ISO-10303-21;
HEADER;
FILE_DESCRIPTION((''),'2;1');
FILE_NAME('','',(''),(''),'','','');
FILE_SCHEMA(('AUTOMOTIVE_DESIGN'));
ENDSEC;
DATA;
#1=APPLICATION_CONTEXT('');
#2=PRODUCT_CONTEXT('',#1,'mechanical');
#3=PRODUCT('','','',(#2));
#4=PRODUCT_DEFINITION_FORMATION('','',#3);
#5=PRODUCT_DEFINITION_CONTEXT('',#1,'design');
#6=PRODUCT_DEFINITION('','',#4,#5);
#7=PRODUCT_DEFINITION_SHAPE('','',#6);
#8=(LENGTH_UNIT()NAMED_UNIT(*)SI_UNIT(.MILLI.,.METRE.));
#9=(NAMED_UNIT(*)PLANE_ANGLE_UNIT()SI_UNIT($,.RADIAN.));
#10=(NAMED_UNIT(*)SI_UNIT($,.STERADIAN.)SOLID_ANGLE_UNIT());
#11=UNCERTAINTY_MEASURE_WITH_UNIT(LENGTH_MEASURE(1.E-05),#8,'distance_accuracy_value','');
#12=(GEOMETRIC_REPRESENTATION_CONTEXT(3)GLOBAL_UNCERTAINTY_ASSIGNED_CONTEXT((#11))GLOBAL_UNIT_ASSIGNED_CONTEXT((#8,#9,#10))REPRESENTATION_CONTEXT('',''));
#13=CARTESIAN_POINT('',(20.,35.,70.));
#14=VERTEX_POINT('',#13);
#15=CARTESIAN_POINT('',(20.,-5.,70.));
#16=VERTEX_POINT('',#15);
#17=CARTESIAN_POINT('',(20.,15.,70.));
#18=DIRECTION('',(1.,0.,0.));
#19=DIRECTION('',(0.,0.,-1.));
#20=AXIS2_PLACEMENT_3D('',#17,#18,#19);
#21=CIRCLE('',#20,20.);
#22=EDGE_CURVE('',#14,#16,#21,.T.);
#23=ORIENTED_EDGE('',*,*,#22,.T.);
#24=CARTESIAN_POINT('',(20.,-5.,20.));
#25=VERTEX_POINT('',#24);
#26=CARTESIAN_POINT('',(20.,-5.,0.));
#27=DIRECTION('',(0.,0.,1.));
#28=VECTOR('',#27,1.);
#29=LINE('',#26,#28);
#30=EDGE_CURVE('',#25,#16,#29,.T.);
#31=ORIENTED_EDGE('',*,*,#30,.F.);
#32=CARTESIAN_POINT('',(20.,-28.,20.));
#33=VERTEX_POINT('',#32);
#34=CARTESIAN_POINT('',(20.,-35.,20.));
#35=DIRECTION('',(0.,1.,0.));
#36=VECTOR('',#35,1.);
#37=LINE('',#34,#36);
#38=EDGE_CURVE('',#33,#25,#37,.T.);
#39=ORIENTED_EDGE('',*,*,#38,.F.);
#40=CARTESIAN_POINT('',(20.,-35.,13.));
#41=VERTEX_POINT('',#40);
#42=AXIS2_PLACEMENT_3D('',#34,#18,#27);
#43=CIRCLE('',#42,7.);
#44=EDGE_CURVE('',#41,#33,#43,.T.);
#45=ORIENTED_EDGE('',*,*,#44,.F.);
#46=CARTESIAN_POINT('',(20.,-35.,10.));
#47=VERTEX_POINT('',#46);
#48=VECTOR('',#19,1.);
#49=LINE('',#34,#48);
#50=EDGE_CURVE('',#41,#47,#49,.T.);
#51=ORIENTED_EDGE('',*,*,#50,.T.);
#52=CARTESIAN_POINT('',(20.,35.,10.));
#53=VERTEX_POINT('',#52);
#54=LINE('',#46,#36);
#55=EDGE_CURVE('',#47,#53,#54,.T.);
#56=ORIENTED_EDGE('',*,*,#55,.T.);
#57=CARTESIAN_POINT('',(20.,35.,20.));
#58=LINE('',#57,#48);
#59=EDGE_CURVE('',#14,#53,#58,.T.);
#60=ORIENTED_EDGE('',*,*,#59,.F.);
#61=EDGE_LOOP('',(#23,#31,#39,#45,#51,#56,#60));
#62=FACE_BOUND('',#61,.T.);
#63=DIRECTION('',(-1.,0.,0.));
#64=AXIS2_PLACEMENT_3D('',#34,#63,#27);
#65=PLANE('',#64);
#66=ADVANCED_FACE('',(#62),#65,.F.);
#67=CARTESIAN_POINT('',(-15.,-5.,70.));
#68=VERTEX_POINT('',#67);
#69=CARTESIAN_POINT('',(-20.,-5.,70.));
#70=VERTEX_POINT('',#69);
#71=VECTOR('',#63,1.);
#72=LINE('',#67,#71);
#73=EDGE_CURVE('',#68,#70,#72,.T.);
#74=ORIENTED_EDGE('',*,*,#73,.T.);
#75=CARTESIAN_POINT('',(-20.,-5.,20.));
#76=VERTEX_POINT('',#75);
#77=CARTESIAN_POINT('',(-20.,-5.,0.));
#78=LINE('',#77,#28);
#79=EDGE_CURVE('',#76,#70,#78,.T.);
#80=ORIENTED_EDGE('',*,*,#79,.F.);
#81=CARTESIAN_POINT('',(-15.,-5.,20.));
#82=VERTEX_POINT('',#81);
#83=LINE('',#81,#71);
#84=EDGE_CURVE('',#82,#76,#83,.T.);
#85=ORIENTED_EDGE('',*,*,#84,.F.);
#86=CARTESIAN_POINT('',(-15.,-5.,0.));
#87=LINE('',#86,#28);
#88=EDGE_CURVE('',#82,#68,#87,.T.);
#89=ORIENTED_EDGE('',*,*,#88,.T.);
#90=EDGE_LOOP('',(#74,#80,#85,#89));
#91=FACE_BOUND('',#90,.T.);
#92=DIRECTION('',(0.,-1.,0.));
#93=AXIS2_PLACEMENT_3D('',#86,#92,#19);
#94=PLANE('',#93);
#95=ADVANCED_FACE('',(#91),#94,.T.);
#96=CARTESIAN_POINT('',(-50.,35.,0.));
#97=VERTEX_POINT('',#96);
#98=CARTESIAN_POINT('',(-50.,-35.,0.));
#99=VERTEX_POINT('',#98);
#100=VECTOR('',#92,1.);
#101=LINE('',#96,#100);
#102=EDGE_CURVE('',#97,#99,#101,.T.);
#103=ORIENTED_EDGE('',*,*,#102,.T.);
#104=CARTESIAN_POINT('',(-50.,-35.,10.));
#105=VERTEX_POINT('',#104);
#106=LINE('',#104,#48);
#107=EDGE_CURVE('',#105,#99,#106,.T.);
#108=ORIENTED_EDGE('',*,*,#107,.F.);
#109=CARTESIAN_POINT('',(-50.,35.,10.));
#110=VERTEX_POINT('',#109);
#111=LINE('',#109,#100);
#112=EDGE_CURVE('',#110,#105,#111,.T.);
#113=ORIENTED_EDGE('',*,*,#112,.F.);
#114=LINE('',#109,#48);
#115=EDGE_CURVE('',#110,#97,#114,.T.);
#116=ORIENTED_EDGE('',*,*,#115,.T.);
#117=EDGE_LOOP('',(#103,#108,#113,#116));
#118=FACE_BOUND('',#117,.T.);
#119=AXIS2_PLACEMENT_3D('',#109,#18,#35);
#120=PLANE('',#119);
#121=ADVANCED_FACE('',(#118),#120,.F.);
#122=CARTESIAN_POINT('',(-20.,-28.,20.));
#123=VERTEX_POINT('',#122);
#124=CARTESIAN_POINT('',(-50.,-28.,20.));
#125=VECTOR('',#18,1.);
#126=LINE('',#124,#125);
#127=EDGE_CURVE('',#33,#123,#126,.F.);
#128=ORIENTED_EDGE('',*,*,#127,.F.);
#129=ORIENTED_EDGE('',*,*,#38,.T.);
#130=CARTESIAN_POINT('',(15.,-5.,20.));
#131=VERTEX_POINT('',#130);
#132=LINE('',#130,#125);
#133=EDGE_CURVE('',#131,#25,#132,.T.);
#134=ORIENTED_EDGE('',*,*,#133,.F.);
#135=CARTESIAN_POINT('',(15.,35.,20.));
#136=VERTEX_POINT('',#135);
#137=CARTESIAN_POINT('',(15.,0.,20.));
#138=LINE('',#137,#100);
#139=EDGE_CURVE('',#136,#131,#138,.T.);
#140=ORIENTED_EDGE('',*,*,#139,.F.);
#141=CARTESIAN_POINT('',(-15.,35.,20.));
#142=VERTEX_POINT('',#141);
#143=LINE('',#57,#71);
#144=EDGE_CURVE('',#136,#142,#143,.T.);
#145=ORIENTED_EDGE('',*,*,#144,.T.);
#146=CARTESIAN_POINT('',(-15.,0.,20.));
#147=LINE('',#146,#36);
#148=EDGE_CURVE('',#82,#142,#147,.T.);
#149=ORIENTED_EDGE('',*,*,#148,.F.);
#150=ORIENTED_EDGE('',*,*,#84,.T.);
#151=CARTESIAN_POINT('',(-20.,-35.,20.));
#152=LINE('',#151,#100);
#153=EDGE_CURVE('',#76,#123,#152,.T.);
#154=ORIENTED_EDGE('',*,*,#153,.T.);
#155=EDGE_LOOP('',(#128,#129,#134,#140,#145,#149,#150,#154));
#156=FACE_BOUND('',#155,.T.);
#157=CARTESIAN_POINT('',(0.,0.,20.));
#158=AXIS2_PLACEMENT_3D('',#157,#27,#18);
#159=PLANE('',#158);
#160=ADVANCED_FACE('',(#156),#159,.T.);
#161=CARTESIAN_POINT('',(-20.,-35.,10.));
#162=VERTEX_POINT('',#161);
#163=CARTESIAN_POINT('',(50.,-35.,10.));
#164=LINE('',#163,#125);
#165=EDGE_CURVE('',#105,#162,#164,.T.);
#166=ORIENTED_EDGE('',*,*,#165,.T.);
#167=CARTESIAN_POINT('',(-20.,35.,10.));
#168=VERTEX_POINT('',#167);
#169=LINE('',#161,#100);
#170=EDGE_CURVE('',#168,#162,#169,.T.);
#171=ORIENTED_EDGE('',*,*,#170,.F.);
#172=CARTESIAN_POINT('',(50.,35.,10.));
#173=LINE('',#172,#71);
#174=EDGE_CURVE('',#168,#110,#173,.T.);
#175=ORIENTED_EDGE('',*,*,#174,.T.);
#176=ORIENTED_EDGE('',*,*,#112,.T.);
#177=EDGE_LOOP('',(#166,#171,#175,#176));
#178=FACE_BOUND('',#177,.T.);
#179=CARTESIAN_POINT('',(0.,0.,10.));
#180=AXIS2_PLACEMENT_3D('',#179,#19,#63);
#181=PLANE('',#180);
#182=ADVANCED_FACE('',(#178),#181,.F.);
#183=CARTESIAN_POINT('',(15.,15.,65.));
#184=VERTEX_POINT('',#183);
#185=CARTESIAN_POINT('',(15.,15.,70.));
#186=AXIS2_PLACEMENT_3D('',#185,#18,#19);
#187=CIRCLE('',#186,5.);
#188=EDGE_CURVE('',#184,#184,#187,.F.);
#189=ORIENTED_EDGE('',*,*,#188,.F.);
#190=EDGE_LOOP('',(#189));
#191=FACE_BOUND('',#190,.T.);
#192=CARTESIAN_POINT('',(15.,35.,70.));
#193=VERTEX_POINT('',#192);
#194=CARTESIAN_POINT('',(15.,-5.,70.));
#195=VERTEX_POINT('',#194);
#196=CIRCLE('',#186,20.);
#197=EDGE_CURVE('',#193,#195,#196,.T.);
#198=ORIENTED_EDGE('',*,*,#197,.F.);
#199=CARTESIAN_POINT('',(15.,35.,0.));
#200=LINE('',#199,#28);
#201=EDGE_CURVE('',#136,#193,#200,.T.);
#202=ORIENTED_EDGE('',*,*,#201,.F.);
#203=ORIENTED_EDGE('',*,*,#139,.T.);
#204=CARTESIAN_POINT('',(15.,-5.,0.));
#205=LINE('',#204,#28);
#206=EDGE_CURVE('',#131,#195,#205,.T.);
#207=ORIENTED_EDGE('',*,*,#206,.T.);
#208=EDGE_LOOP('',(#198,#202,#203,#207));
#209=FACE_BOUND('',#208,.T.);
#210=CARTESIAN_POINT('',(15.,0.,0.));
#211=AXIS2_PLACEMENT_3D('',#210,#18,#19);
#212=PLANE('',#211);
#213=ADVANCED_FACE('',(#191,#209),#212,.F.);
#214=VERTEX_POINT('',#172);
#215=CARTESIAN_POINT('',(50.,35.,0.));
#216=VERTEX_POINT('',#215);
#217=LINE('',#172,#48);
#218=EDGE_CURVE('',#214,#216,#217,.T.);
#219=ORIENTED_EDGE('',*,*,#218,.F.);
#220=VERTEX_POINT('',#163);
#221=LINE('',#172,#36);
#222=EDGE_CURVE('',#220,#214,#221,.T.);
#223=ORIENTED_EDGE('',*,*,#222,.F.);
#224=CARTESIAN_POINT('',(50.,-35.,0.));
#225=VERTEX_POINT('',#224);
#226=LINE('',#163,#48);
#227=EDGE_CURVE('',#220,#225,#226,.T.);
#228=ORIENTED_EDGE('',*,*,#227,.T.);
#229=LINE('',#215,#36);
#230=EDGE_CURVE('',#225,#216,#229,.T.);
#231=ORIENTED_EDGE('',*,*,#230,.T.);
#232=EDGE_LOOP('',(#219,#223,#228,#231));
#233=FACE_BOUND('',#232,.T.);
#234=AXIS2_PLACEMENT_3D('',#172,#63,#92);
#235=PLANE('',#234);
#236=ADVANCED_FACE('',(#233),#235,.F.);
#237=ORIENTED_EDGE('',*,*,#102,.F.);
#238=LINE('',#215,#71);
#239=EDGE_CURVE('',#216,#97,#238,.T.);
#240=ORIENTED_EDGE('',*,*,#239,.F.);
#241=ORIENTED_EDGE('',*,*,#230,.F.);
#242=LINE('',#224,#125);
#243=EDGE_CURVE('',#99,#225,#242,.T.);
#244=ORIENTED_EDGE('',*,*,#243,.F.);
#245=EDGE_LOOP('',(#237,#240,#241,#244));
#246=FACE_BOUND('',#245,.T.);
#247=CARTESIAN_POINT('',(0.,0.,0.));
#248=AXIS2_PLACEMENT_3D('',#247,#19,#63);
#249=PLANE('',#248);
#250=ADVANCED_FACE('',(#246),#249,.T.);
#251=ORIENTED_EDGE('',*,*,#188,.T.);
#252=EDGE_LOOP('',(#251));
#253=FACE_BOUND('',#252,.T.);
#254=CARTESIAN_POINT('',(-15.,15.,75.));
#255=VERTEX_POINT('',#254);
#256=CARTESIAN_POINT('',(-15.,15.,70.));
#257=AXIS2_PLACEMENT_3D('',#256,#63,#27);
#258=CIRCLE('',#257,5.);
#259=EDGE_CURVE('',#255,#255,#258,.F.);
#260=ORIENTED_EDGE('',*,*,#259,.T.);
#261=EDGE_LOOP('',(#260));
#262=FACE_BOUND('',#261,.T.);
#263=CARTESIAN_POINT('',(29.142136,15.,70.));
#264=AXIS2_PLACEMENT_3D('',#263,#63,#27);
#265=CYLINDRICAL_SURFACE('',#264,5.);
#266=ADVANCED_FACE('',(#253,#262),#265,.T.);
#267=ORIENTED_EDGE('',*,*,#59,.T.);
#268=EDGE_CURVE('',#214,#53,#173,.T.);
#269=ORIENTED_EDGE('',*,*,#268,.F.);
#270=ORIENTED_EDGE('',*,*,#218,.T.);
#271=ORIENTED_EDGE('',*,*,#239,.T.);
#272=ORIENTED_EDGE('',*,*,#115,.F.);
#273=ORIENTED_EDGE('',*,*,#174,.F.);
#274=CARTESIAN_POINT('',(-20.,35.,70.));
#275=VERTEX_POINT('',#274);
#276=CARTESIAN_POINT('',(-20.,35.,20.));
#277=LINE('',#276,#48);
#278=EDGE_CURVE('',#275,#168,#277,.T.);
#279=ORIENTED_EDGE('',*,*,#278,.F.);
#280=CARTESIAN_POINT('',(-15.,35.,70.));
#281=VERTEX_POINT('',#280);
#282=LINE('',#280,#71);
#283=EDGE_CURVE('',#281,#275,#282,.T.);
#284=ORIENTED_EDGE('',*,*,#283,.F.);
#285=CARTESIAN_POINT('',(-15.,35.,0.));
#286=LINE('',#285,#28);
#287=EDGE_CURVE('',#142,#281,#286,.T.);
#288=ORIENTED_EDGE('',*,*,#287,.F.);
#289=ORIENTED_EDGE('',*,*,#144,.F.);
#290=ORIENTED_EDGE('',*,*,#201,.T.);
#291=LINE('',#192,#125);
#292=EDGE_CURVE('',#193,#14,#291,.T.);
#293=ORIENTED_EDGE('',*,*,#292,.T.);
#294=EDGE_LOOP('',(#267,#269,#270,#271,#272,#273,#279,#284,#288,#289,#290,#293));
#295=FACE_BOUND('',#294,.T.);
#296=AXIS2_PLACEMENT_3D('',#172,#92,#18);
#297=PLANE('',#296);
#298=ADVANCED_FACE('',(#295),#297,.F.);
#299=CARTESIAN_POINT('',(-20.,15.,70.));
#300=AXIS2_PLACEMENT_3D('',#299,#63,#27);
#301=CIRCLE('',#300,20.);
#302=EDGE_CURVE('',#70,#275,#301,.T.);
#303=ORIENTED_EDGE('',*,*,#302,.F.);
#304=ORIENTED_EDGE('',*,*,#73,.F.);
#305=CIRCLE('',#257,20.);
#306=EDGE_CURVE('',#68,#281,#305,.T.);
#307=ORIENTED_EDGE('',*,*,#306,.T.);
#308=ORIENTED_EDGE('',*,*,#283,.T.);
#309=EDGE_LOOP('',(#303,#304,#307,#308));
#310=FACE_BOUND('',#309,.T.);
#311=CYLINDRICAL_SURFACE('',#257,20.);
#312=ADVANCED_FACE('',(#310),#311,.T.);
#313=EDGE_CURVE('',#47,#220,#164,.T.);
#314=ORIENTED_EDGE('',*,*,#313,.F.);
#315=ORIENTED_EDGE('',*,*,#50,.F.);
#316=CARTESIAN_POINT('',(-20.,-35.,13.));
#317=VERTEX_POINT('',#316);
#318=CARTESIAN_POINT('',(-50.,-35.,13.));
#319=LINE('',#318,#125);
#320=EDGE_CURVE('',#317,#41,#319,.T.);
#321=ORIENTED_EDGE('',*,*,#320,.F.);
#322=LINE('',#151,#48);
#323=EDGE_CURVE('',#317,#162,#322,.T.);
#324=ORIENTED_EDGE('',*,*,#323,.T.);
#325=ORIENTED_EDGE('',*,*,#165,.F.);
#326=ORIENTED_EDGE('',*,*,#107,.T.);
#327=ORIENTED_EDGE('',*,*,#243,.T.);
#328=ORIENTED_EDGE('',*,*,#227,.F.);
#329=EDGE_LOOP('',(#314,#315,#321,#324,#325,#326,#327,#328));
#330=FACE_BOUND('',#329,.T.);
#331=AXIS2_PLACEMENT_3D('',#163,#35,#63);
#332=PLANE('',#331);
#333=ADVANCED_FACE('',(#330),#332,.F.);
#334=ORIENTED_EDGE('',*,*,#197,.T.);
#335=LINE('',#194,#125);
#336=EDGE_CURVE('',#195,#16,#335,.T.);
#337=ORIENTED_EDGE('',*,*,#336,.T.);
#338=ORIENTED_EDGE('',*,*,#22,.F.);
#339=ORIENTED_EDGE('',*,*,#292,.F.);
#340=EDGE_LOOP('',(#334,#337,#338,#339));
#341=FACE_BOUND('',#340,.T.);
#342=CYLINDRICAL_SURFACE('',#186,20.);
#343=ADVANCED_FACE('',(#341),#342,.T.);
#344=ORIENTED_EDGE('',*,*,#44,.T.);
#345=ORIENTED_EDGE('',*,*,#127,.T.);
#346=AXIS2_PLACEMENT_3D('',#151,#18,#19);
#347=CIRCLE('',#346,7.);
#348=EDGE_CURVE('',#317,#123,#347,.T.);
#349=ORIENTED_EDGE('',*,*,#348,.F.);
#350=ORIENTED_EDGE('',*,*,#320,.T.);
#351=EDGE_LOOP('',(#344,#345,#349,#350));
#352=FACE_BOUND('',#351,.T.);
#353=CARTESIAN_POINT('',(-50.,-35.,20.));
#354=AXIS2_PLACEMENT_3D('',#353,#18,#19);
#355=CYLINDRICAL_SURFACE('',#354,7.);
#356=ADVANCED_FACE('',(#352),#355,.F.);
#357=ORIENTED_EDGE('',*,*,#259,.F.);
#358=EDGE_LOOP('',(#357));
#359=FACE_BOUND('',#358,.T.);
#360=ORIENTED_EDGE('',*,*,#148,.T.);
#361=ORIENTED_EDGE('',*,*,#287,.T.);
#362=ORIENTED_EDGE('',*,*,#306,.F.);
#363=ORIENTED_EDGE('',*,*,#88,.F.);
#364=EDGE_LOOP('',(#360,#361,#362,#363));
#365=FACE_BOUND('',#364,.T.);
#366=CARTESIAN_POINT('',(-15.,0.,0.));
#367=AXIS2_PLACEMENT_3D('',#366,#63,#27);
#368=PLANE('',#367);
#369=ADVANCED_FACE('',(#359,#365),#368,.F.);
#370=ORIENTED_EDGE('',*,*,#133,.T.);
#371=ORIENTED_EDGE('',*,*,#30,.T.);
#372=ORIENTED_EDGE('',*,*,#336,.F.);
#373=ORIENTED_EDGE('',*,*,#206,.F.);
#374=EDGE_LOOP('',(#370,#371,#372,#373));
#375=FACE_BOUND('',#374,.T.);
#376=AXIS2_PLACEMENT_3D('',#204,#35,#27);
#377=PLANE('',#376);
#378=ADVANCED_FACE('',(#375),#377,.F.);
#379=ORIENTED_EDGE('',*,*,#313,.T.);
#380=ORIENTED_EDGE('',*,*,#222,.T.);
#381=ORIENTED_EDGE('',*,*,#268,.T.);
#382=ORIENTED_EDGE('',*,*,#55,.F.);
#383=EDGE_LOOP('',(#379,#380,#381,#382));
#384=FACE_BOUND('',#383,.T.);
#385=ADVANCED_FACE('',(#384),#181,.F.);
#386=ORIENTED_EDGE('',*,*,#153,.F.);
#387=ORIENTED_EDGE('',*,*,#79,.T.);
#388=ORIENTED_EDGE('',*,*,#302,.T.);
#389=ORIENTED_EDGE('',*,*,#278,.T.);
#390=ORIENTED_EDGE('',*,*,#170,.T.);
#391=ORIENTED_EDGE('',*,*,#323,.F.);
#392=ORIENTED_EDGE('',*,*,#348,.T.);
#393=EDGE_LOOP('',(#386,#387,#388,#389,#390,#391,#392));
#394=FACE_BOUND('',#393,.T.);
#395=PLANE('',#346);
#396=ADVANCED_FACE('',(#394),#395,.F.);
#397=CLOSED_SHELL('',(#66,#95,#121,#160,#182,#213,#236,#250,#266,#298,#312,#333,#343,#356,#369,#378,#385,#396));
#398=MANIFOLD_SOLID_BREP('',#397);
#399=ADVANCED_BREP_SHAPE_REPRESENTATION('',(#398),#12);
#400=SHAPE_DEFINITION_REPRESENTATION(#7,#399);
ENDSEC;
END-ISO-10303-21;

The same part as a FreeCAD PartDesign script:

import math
import FreeCAD as App
import Part
import Sketcher
Q = App.Units.Quantity

doc = App.newDocument("Part")
body = doc.addObject("PartDesign::Body", "Body")

sketch1 = body.newObject("Sketcher::SketchObject", "Sketch")
sketch1.AttachmentSupport = (doc.getObject("XY_Plane"), [""])
sketch1.MapMode = "FlatFace"
sketch1.addGeometry([
    Part.LineSegment(App.Vector(-50, 35, 0), App.Vector(-50, -35, 0)),
    Part.LineSegment(App.Vector(-50, -35, 0), App.Vector(50, -35, 0)),
    Part.LineSegment(App.Vector(50, -35, 0), App.Vector(50, 35, 0)),
    Part.LineSegment(App.Vector(50, 35, 0), App.Vector(-50, 35, 0)),
], False)
sketch1.addConstraint([
    Sketcher.Constraint("Coincident", 0, 2, 1, 1),
    Sketcher.Constraint("Coincident", 1, 2, 2, 1),
    Sketcher.Constraint("Coincident", 2, 2, 3, 1),
    Sketcher.Constraint("Coincident", 3, 2, 0, 1),
    Sketcher.Constraint("Vertical", 0),
    Sketcher.Constraint("Horizontal", 1),
    Sketcher.Constraint("Vertical", 2),
    Sketcher.Constraint("Horizontal", 3),
    Sketcher.Constraint("Symmetric", 0, 2, 2, 2, -1, 1),
    Sketcher.Constraint("DistanceX", 1, 1, 1, 2, Q("100 mm")),
    Sketcher.Constraint("DistanceY", 0, 2, 0, 1, Q("70 mm")),
])
pad1 = body.newObject("PartDesign::Pad", "Pad")
pad1.Profile = sketch1
pad1.Length = 10

sketch2 = body.newObject("Sketcher::SketchObject", "Sketch001")
sketch2.AttachmentSupport = (doc.getObject("XY_Plane"), [""])
sketch2.MapMode = "FlatFace"
sketch2.AttachmentOffset = App.Placement(App.Vector(0, 0, 10), App.Rotation())
sketch2.addGeometry([
    Part.LineSegment(App.Vector(-20, 35, 0), App.Vector(-20, -35, 0)),
    Part.LineSegment(App.Vector(-20, -35, 0), App.Vector(20, -35, 0)),
    Part.LineSegment(App.Vector(20, -35, 0), App.Vector(20, 35, 0)),
    Part.LineSegment(App.Vector(20, 35, 0), App.Vector(-20, 35, 0)),
], False)
sketch2.addConstraint([
    Sketcher.Constraint("Coincident", 0, 2, 1, 1),
    Sketcher.Constraint("Coincident", 1, 2, 2, 1),
    Sketcher.Constraint("Coincident", 2, 2, 3, 1),
    Sketcher.Constraint("Coincident", 3, 2, 0, 1),
    Sketcher.Constraint("Vertical", 0),
    Sketcher.Constraint("Horizontal", 1),
    Sketcher.Constraint("Vertical", 2),
    Sketcher.Constraint("Horizontal", 3),
    Sketcher.Constraint("Symmetric", 0, 2, 2, 2, -1, 1),
    Sketcher.Constraint("DistanceX", 1, 1, 1, 2, Q("40 mm")),
    Sketcher.Constraint("DistanceY", 0, 2, 0, 1, Q("70 mm")),
])
pad2 = body.newObject("PartDesign::Pad", "Pad001")
pad2.Profile = sketch2
pad2.Length = 10

sketch3 = body.newObject("Sketcher::SketchObject", "Sketch002")
sketch3.AttachmentSupport = (doc.getObject("YZ_Plane"), [""])
sketch3.MapMode = "FlatFace"
sketch3.AttachmentOffset = App.Placement(App.Vector(0, 0, 20), App.Rotation())
sketch3.addGeometry([
    Part.LineSegment(App.Vector(-28, 20, 0), App.Vector(-35, 20, 0)),
    Part.LineSegment(App.Vector(-35, 20, 0), App.Vector(-35, 13, 0)),
    Part.ArcOfCircle(Part.Circle(App.Vector(-35, 20, 0), App.Vector(0, 0, 1), 7), math.radians(-90), math.radians(0)),
], False)
sketch3.addConstraint([
    Sketcher.Constraint("Coincident", 0, 2, 1, 1),
    Sketcher.Constraint("Coincident", 1, 2, 2, 1),
    Sketcher.Constraint("Coincident", 2, 2, 0, 1),
    Sketcher.Constraint("Horizontal", 0),
    Sketcher.Constraint("Vertical", 1),
    Sketcher.Constraint("Coincident", 0, 2, 2, 3),
    Sketcher.Constraint("Radius", 2, Q("7 mm")),
    Sketcher.Constraint("DistanceX", 2, 3, -1, 1, Q("35 mm")),
    Sketcher.Constraint("DistanceY", -1, 1, 2, 3, Q("20 mm")),
])
pocket1 = body.newObject("PartDesign::Pocket", "Pocket")
pocket1.Profile = sketch3
pocket1.Type = "ThroughAll"

sketch4 = body.newObject("Sketcher::SketchObject", "Sketch003")
sketch4.AttachmentSupport = (doc.getObject("YZ_Plane"), [""])
sketch4.MapMode = "FlatFace"
sketch4.AttachmentOffset = App.Placement(App.Vector(0, 0, 20), App.Rotation())
sketch4.addGeometry([
    Part.LineSegment(App.Vector(-5, 70, 0), App.Vector(-5, 20, 0)),
    Part.LineSegment(App.Vector(-5, 20, 0), App.Vector(35, 20, 0)),
    Part.LineSegment(App.Vector(35, 20, 0), App.Vector(35, 70, 0)),
    Part.ArcOfCircle(Part.Circle(App.Vector(15, 70, 0), App.Vector(0, 0, 1), 20), math.radians(0), math.radians(180)),
], False)
sketch4.addConstraint([
    Sketcher.Constraint("Coincident", 0, 2, 1, 1),
    Sketcher.Constraint("Coincident", 1, 2, 2, 1),
    Sketcher.Constraint("Tangent", 2, 2, 3, 1),
    Sketcher.Constraint("Tangent", 3, 2, 0, 1),
    Sketcher.Constraint("Vertical", 0),
    Sketcher.Constraint("Horizontal", 1),
    Sketcher.Constraint("Vertical", 2),
    Sketcher.Constraint("Radius", 3, Q("20 mm")),
    Sketcher.Constraint("DistanceY", 0, 2, 0, 1, Q("50 mm")),
    Sketcher.Constraint("DistanceX", -1, 1, 3, 3, Q("15 mm")),
    Sketcher.Constraint("DistanceY", -1, 1, 3, 3, Q("70 mm")),
])
pad3 = body.newObject("PartDesign::Pad", "Pad002")
pad3.Profile = sketch4
pad3.Length = 5
pad3.Reversed = True

sketch5 = body.newObject("Sketcher::SketchObject", "Sketch004")
sketch5.AttachmentSupport = (doc.getObject("YZ_Plane"), [""])
sketch5.MapMode = "FlatFace"
sketch5.AttachmentOffset = App.Placement(App.Vector(0, 0, -15), App.Rotation())
sketch5.addGeometry([
    Part.LineSegment(App.Vector(35, 20, 0), App.Vector(-5, 20, 0)),
    Part.LineSegment(App.Vector(-5, 20, 0), App.Vector(-5, 70, 0)),
    Part.ArcOfCircle(Part.Circle(App.Vector(15, 70, 0), App.Vector(0, 0, 1), 20), math.radians(0), math.radians(180)),
    Part.LineSegment(App.Vector(35, 70, 0), App.Vector(35, 20, 0)),
], False)
sketch5.addConstraint([
    Sketcher.Constraint("Coincident", 0, 2, 1, 1),
    Sketcher.Constraint("Tangent", 1, 2, 2, 2),
    Sketcher.Constraint("Tangent", 2, 1, 3, 1),
    Sketcher.Constraint("Coincident", 3, 2, 0, 1),
    Sketcher.Constraint("Horizontal", 0),
    Sketcher.Constraint("Vertical", 1),
    Sketcher.Constraint("Vertical", 3),
    Sketcher.Constraint("Radius", 2, Q("20 mm")),
    Sketcher.Constraint("DistanceY", 1, 1, 1, 2, Q("50 mm")),
    Sketcher.Constraint("DistanceX", -1, 1, 2, 3, Q("15 mm")),
    Sketcher.Constraint("DistanceY", -1, 1, 2, 3, Q("70 mm")),
])
pad4 = body.newObject("PartDesign::Pad", "Pad003")
pad4.Profile = sketch5
pad4.Length = 5
pad4.Reversed = True

sketch6 = body.newObject("Sketcher::SketchObject", "Sketch005")
sketch6.AttachmentSupport = (doc.getObject("YZ_Plane"), [""])
sketch6.MapMode = "FlatFace"
sketch6.AttachmentOffset = App.Placement(App.Vector(0, 0, -15), App.Rotation())
sketch6.addGeometry(Part.Circle(App.Vector(15, 70, 0), App.Vector(0, 0, 1), 5), False)
sketch6.addConstraint([
    Sketcher.Constraint("Diameter", 0, Q("10 mm")),
    Sketcher.Constraint("DistanceX", -1, 1, 0, 3, Q("15 mm")),
    Sketcher.Constraint("DistanceY", -1, 1, 0, 3, Q("70 mm")),
])
pad5 = body.newObject("PartDesign::Pad", "Pad004")
pad5.Profile = sketch6
pad5.Length = 30

doc.recompute()
